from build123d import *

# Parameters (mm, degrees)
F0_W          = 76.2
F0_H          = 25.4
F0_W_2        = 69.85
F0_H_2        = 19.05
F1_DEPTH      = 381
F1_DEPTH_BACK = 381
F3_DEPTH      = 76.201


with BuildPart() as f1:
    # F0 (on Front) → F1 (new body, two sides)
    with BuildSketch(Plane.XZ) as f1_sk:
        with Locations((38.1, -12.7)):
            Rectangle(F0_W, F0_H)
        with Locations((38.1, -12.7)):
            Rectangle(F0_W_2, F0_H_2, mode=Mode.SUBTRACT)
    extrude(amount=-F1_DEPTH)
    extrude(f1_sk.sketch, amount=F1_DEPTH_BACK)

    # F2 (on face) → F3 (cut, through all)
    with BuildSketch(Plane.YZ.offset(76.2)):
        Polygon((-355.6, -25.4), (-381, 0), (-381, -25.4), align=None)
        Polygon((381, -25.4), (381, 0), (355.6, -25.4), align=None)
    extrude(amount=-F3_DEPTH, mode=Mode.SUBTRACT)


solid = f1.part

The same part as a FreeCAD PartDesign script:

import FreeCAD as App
import Part
import Sketcher
from FreeCAD import Vector
Q = App.Units.Quantity


def add_polygon(sketch, points):
    """Adds a closed chain of lines whose ends are joined by coincident constraints."""
    first, n = sketch.GeometryCount, len(points)
    for a, b in zip(points, points[1:] + points[:1]):
        sketch.addGeometry(Part.LineSegment(App.Vector(*a, 0), App.Vector(*b, 0)), False)
    for i in range(n):
        sketch.addConstraint(Sketcher.Constraint("Coincident", first + i, 2, first + (i + 1) % n, 1))

doc = App.newDocument("Part")
body = doc.addObject("PartDesign::Body", "Body")

# Sketch on XZ plane
sketch1 = doc.addObject("Sketcher::SketchObject", "Sketch")
body.addObject(sketch1)
sketch1.AttachmentSupport = (doc.XZ_Plane, [""])
sketch1.MapMode = "FlatFace"
add_polygon(sketch1, [(0, 0), (0, -25.4), (76.2, -25.4), (76.2, 0)])  # lines 0-3
add_polygon(sketch1, [(73.025, -22.225), (3.175, -22.225), (3.175, -3.175), (73.025, -3.175)])  # lines 4-7
sketch1.addConstraint([
    Sketcher.Constraint("Vertical", 0),
    Sketcher.Constraint("Horizontal", 1),
    Sketcher.Constraint("Vertical", 2),
    Sketcher.Constraint("Horizontal", 3),
    Sketcher.Constraint("Horizontal", 4),
    Sketcher.Constraint("Vertical", 5),
    Sketcher.Constraint("Horizontal", 6),
    Sketcher.Constraint("Vertical", 7),
    Sketcher.Constraint("Coincident", 3, 2, -1, 1),
    Sketcher.Constraint("DistanceX", 1, 1, 1, 2, Q("3 in")),
    Sketcher.Constraint("DistanceY", 0, 2, 0, 1, Q("1 in")),
    Sketcher.Constraint("DistanceX", 4, 2, 4, 1, Q("2.75 in")),
    Sketcher.Constraint("DistanceY", 5, 1, 5, 2, Q("0.75 in")),
    Sketcher.Constraint("DistanceX", -1, 1, 4, 2, Q("0.125 in")),
    Sketcher.Constraint("DistanceY", 4, 2, -1, 1, Q("0.875 in")),
])
pad1 = doc.addObject("PartDesign::Pad", "Pad")
body.addObject(pad1)
pad1.Profile = sketch1
pad1.Type = "TwoLengths"
pad1.Length = Q("15 in")
pad1.Length2 = Q("15 in")
pad1.Reversed = True

# Sketch on YZ plane
sketch2 = doc.addObject("Sketcher::SketchObject", "Sketch001")
body.addObject(sketch2)
sketch2.AttachmentSupport = (doc.YZ_Plane, [""])
sketch2.MapMode = "FlatFace"
sketch2.AttachmentOffset = App.Placement(Vector(0, 0, 3 * 25.4), App.Rotation())
add_polygon(sketch2, [(-355.6, -25.4), (-381, 0), (-381, -25.4)])  # lines 0-2
add_polygon(sketch2, [(381, -25.4), (381, 0), (355.6, -25.4)])  # lines 3-5
sketch2.addConstraint([
    Sketcher.Constraint("Vertical", 1),
    Sketcher.Constraint("Horizontal", 2),
    Sketcher.Constraint("Vertical", 3),
    Sketcher.Constraint("Horizontal", 5),
    Sketcher.Constraint("Symmetric", 0, 2, 3, 2, -1, 1),
    Sketcher.Constraint("Symmetric", 2, 2, 4, 2, -2),
    Sketcher.Constraint("PointOnObject", 0, 2, -1),
    Sketcher.Constraint("Perpendicular", 0, 4),
    Sketcher.Constraint("DistanceX", 2, 1, 2, 2, Q("1 in")),
    Sketcher.Constraint("DistanceX", 0, 2, -1, 1, Q("15 in")),
])
pocket1 = doc.addObject("PartDesign::Pocket", "Pocket")
body.addObject(pocket1)
pocket1.Profile = sketch2
pocket1.Type = "ThroughAll"

doc.recompute()
